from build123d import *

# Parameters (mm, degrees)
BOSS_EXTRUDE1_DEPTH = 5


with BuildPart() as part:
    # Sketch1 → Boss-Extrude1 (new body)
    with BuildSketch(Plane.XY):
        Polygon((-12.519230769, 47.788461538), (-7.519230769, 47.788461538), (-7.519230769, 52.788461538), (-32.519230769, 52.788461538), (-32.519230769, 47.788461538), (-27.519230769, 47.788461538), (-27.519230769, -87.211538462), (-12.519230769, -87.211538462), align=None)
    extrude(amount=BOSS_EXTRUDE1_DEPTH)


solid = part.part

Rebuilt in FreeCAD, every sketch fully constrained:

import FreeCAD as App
import Part
import Sketcher

doc = App.newDocument("Part")
body = doc.addObject("PartDesign::Body", "Body")

sketch1 = body.newObject("Sketcher::SketchObject", "Sketch")
sketch1.AttachmentSupport = (doc.getObject("XY_Plane"), [""])
sketch1.MapMode = "FlatFace"
sketch1.addGeometry([
    Part.LineSegment(App.Vector(-12.519231, 47.788462, 0), App.Vector(-7.519231, 47.788462, 0)),
    Part.LineSegment(App.Vector(-7.519231, 47.788462, 0), App.Vector(-7.519231, 52.788462, 0)),
    Part.LineSegment(App.Vector(-7.519231, 52.788462, 0), App.Vector(-32.519231, 52.788462, 0)),
    Part.LineSegment(App.Vector(-32.519231, 52.788462, 0), App.Vector(-32.519231, 47.788462, 0)),
    Part.LineSegment(App.Vector(-32.519231, 47.788462, 0), App.Vector(-27.519231, 47.788462, 0)),
    Part.LineSegment(App.Vector(-27.519231, 47.788462, 0), App.Vector(-27.519231, -87.211538, 0)),
    Part.LineSegment(App.Vector(-27.519231, -87.211538, 0), App.Vector(-12.519231, -87.211538, 0)),
    Part.LineSegment(App.Vector(-12.519231, -87.211538, 0), App.Vector(-12.519231, 47.788462, 0)),
], False)
sketch1.addConstraint([
    Sketcher.Constraint("Coincident", 0, 2, 1, 1),
    Sketcher.Constraint("Coincident", 1, 2, 2, 1),
    Sketcher.Constraint("Coincident", 2, 2, 3, 1),
    Sketcher.Constraint("Coincident", 3, 2, 4, 1),
    Sketcher.Constraint("Coincident", 4, 2, 5, 1),
    Sketcher.Constraint("Coincident", 5, 2, 6, 1),
    Sketcher.Constraint("Coincident", 6, 2, 7, 1),
    Sketcher.Constraint("Coincident", 7, 2, 0, 1),
    Sketcher.Constraint("Horizontal", 0),
    Sketcher.Constraint("Vertical", 1),
    Sketcher.Constraint("Horizontal", 2),
    Sketcher.Constraint("Vertical", 3),
    Sketcher.Constraint("Horizontal", 4),
    Sketcher.Constraint("Vertical", 5),
    Sketcher.Constraint("Horizontal", 6),
    Sketcher.Constraint("Vertical", 7),
    Sketcher.Constraint("Horizontal", 0, 2, 3, 2),
    Sketcher.Constraint("Equal", 0, 4),
    Sketcher.Constraint("Equal", 4, 1),
    Sketcher.Constraint("DistanceX", 0, 1, 0, 2, 5.0),
    Sketcher.Constraint("DistanceX", 2, 2, 2, 1, 25.0),
    Sketcher.Constraint("DistanceY", 5, 2, 5, 1, 135.0),
    Sketcher.Constraint("DistanceX", 0, 2, -1, 1, 7.519231),
    Sketcher.Constraint("DistanceY", -1, 1, 0, 2, 47.788462),
])
pad1 = body.newObject("PartDesign::Pad", "Pad")
pad1.Profile = sketch1
pad1.Length = 5

doc.recompute()
